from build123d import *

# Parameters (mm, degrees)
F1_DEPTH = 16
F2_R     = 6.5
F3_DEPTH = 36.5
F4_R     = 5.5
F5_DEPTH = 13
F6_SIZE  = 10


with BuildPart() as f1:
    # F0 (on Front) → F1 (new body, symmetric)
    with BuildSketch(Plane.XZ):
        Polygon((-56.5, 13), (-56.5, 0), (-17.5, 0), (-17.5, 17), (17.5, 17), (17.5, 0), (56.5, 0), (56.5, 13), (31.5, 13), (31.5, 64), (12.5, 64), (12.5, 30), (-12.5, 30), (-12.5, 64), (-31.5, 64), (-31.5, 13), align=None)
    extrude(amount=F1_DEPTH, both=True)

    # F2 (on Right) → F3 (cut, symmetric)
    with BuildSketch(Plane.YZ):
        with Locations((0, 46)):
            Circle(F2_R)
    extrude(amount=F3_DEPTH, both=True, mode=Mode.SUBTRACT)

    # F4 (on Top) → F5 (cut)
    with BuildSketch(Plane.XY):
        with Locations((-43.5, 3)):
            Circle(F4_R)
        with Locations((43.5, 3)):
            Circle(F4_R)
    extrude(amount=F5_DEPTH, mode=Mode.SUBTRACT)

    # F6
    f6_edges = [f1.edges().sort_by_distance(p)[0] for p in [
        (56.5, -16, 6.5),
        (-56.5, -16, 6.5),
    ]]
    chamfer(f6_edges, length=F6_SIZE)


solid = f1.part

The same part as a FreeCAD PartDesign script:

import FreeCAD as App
import Part
import Sketcher

V = App.Vector


def edges_at(feature, points):
    """Names of the edges that pass closest to the given points."""
    edges = feature.Shape.Edges
    near = lambda p: min(range(len(edges)), key=lambda i: edges[i].distToShape(Part.Vertex(*p))[0])
    return sorted({f"Edge{near(p) + 1}" for p in points})


def add_polygon(sketch, points):
    """Adds a closed chain of lines whose ends are joined by coincident constraints."""
    first, n = sketch.GeometryCount, len(points)
    for a, b in zip(points, points[1:] + points[:1]):
        sketch.addGeometry(Part.LineSegment(App.Vector(*a, 0), App.Vector(*b, 0)), False)
    for i in range(n):
        sketch.addConstraint(Sketcher.Constraint("Coincident", first + i, 2, first + (i + 1) % n, 1))

doc = App.newDocument("Part")
body = doc.addObject("PartDesign::Body", "Body")

# Sketch on XZ plane
sketch1 = body.newObject("Sketcher::SketchObject", "Sketch")
sketch1.AttachmentSupport = (doc.getObject("XZ_Plane"), [""])
sketch1.MapMode = "FlatFace"
add_polygon(sketch1, [(-56, 13), (-56, 0), (-18, 0), (-18, 17), (18, 17), (18, 0), (56, 0), (56, 13), (32, 13), (32, 64), (12, 64), (12, 30), (-12, 30), (-12, 64), (-32, 64), (-32, 13)])  # lines 0-15
sketch1.addConstraint(Sketcher.Constraint("Vertical", 0))
sketch1.addConstraint(Sketcher.Constraint("Horizontal", 1))
sketch1.addConstraint(Sketcher.Constraint("Vertical", 2))
sketch1.addConstraint(Sketcher.Constraint("Horizontal", 3))
sketch1.addConstraint(Sketcher.Constraint("Vertical", 4))
sketch1.addConstraint(Sketcher.Constraint("Horizontal", 5))
sketch1.addConstraint(Sketcher.Constraint("Vertical", 6))
sketch1.addConstraint(Sketcher.Constraint("Horizontal", 7))
sketch1.addConstraint(Sketcher.Constraint("Vertical", 8))
sketch1.addConstraint(Sketcher.Constraint("Horizontal", 9))
sketch1.addConstraint(Sketcher.Constraint("Vertical", 10))
sketch1.addConstraint(Sketcher.Constraint("Horizontal", 11))
sketch1.addConstraint(Sketcher.Constraint("Vertical", 12))
sketch1.addConstraint(Sketcher.Constraint("Horizontal", 13))
sketch1.addConstraint(Sketcher.Constraint("Vertical", 14))
sketch1.addConstraint(Sketcher.Constraint("Horizontal", 15))
sketch1.addConstraint(Sketcher.Constraint("Symmetric", 1, 2, 4, 2, -1, 1))
sketch1.addConstraint(Sketcher.Constraint("Symmetric", 0, 2, 5, 2, -2))
sketch1.addConstraint(Sketcher.Constraint("Symmetric", 9, 2, 12, 2, -2))
sketch1.addConstraint(Sketcher.Constraint("Symmetric", 7, 2, 14, 2, -2))
sketch1.addConstraint(Sketcher.Constraint("Equal", 7, 11))
sketch1.addConstraint(Sketcher.Constraint("DistanceX", 1, 1, 1, 2, 39.0))
sketch1.addConstraint(Sketcher.Constraint("DistanceX", 3, 1, 3, 2, 35.0))
sketch1.addConstraint(Sketcher.Constraint("DistanceX", 7, 2, 7, 1, 25.0))
sketch1.addConstraint(Sketcher.Constraint("DistanceY", 0, 2, 0, 1, 13.0))
sketch1.addConstraint(Sketcher.Constraint("DistanceY", 2, 1, 2, 2, 17.0))
sketch1.addConstraint(Sketcher.Constraint("DistanceY", 8, 1, 8, 2, 51.0))
sketch1.addConstraint(Sketcher.Constraint("DistanceY", 10, 2, 10, 1, 34.0))
pad1 = body.newObject("PartDesign::Pad", "Pad")
pad1.Profile = sketch1
pad1.Length = 32
pad1.Midplane = True

# Sketch on YZ plane
sketch2 = body.newObject("Sketcher::SketchObject", "Sketch001")
sketch2.AttachmentSupport = (doc.getObject("YZ_Plane"), [""])
sketch2.MapMode = "FlatFace"
sketch2.addGeometry(Part.Circle(V(0, 46, 0), V(0, 0, 1), 6), False)
sketch2.addConstraint(Sketcher.Constraint("PointOnObject", 0, 3, -2))
sketch2.addConstraint(Sketcher.Constraint("Diameter", 0, 13.0))
sketch2.addConstraint(Sketcher.Constraint("DistanceY", -1, 1, 0, 3, 46.0))
pocket1 = body.newObject("PartDesign::Pocket", "Pocket")
pocket1.Profile = sketch2
pocket1.Length = 73
pocket1.Midplane = True

# Sketch on XY plane
sketch3 = body.newObject("Sketcher::SketchObject", "Sketch002")
sketch3.AttachmentSupport = (doc.getObject("XY_Plane"), [""])
sketch3.MapMode = "FlatFace"
sketch3.addGeometry(Part.Circle(V(-44, 3, 0), V(0, 0, 1), 6), False)
sketch3.addGeometry(Part.Circle(V(44, 3, 0), V(0, 0, 1), 6), False)
sketch3.addConstraint(Sketcher.Constraint("Equal", 0, 1))
sketch3.addConstraint(Sketcher.Constraint("Symmetric", 0, 3, 1, 3, -2))
sketch3.addConstraint(Sketcher.Constraint("Diameter", 0, 11.0))
sketch3.addConstraint(Sketcher.Constraint("DistanceY", -1, 1, 0, 3, 3.0))
sketch3.addConstraint(Sketcher.Constraint("DistanceX", 0, 3, 1, 3, 87.0))
pocket2 = body.newObject("PartDesign::Pocket", "Pocket001")
pocket2.Profile = sketch3
pocket2.Length = 13
pocket2.Reversed = True
doc.recompute()

chamfer = body.newObject("PartDesign::Chamfer", "Chamfer")
chamfer.Base = (pocket2, edges_at(pocket2, [(56.5, -16, 6.5), (-56.5, -16, 6.5)]))
chamfer.Size = 10

doc.recompute()
